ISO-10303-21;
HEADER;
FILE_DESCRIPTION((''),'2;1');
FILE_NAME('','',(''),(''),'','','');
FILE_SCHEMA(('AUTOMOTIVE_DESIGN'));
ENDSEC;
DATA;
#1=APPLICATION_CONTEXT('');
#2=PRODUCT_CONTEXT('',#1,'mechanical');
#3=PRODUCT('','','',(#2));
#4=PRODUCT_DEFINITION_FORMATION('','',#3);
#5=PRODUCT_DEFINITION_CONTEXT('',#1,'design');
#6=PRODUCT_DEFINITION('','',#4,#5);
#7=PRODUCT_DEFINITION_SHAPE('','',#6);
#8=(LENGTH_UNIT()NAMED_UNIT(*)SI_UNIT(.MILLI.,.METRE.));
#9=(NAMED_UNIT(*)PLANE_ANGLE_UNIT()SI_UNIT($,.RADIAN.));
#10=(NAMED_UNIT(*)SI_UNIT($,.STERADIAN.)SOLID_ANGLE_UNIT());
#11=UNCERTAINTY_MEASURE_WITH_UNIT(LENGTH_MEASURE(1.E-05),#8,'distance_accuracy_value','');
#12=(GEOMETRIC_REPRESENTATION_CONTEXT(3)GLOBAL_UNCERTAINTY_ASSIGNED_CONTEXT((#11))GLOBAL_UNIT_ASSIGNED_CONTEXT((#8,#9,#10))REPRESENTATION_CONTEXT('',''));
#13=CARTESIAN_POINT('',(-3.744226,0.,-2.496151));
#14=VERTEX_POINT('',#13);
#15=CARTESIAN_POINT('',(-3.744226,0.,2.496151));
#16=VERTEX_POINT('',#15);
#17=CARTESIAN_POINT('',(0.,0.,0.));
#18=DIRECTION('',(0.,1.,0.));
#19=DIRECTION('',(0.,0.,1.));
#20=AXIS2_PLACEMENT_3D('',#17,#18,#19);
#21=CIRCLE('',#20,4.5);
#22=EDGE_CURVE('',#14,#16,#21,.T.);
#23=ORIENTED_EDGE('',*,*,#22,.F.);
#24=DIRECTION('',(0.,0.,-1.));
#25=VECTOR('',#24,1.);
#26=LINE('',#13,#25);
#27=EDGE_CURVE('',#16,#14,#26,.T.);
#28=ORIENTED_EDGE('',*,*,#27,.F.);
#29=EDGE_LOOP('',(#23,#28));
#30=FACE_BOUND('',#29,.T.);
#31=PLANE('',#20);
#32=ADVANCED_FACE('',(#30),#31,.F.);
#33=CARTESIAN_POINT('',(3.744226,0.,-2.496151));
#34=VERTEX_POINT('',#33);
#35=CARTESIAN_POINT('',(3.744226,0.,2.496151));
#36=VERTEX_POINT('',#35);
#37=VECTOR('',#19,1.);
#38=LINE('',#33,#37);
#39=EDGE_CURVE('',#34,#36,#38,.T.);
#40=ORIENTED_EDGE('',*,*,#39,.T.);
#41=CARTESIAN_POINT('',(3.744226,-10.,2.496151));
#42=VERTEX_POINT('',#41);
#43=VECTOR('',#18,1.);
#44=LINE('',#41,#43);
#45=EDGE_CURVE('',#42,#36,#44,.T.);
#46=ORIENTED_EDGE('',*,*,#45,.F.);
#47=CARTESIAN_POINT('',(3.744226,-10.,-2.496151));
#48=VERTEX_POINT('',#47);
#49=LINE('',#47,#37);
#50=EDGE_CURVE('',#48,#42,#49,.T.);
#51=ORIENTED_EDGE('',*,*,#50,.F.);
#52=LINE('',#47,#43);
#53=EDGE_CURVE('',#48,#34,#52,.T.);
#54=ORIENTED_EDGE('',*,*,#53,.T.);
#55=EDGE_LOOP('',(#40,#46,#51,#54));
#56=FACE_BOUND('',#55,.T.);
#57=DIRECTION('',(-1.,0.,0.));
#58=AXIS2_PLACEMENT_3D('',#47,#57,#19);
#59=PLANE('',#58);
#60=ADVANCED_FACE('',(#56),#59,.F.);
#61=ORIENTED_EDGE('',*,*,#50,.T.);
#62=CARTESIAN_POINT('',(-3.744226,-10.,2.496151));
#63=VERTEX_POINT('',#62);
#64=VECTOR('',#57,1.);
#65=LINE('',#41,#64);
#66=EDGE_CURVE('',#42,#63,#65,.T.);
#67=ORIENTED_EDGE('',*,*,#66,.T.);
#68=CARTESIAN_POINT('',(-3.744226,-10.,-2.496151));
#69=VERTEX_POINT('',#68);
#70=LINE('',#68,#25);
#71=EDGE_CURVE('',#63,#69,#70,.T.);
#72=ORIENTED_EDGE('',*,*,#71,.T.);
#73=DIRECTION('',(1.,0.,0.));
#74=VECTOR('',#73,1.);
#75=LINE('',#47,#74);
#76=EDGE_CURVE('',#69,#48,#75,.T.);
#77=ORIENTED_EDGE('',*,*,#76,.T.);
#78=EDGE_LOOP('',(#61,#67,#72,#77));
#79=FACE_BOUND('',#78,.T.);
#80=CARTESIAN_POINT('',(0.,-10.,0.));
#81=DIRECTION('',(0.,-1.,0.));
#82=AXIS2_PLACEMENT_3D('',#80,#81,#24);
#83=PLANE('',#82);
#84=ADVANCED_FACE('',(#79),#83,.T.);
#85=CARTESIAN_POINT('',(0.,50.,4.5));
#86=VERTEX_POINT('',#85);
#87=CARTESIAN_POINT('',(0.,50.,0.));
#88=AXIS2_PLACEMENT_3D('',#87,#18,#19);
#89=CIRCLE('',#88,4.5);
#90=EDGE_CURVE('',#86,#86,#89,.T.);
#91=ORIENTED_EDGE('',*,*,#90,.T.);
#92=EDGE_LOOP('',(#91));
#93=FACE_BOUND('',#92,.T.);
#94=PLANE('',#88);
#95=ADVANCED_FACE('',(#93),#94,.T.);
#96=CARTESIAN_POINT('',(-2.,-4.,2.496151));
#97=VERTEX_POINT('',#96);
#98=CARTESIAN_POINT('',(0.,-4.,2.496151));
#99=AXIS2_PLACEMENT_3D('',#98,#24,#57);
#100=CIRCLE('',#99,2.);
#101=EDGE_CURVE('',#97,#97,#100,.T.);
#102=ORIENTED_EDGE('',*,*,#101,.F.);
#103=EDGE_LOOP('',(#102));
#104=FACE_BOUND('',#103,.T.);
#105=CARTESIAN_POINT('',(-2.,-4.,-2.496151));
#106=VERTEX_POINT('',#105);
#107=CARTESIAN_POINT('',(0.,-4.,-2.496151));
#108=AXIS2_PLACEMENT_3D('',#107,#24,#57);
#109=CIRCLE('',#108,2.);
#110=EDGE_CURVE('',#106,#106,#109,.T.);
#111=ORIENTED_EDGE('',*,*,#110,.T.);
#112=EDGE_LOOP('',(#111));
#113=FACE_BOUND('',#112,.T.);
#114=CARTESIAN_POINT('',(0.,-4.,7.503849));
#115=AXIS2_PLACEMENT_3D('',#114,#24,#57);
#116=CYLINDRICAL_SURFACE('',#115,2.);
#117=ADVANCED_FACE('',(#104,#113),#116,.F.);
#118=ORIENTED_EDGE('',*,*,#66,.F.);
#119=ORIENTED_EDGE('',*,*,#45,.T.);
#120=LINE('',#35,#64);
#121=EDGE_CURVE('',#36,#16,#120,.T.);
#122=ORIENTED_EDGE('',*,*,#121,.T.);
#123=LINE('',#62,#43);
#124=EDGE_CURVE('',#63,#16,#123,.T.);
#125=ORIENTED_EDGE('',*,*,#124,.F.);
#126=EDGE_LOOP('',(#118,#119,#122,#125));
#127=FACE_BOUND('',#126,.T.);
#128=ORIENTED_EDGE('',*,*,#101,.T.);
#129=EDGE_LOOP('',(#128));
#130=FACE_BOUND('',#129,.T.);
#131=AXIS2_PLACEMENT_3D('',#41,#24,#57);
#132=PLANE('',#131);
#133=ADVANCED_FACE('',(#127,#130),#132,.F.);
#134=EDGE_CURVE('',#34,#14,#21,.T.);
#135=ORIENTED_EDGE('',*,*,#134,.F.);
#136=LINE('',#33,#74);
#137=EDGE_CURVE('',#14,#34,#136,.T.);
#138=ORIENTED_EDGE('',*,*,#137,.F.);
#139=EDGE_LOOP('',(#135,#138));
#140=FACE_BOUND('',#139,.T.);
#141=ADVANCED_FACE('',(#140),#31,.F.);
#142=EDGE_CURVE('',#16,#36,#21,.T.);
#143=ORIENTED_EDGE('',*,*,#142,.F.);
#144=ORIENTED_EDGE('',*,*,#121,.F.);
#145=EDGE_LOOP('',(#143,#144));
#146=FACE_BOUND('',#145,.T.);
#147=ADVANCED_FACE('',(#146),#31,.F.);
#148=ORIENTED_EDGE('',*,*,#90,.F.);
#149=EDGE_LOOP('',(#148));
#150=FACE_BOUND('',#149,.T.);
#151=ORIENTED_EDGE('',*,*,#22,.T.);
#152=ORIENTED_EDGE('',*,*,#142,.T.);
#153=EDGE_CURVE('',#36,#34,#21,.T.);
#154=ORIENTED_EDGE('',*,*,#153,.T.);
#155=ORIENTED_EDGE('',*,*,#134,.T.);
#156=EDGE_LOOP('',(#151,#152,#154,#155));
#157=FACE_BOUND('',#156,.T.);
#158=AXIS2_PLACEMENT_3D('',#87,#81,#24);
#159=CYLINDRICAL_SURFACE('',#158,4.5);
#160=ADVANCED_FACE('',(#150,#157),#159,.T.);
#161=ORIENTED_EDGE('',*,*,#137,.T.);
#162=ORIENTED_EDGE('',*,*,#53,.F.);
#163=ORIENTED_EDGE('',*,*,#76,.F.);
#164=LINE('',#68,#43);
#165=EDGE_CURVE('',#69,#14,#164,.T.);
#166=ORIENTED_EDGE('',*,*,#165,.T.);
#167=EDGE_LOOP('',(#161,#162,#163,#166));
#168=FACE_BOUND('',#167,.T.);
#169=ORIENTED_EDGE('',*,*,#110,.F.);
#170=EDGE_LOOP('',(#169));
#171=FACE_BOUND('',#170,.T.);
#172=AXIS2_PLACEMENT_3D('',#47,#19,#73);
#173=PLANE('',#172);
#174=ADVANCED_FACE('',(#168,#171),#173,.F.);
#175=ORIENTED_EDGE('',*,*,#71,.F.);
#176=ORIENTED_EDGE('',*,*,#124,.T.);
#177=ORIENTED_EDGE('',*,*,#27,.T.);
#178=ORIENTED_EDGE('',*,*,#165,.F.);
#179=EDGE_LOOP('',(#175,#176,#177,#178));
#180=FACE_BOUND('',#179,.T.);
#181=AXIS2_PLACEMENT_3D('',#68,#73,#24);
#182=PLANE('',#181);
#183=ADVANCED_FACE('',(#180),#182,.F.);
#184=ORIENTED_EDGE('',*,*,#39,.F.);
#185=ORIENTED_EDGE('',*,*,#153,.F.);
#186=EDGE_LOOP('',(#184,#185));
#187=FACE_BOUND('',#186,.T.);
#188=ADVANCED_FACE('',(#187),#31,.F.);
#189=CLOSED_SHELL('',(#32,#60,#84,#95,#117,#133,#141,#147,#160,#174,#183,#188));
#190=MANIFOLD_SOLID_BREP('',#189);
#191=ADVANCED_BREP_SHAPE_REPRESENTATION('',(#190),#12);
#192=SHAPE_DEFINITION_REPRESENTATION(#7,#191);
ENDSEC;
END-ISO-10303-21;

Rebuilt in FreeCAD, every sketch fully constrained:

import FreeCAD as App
import Part
import Sketcher

V = App.Vector
Q = App.Units.Quantity

doc = App.newDocument("Part")
params = doc.addObject("Spreadsheet::Sheet", "Params")
for row, (alias, value) in enumerate([
    ("sketch1_diameter", "9 mm"),
    ("pad1_length", "50 mm"),
    ("pad2_length", "10 mm"),
    ("sketch3_diameter", "4 mm"),
    ("pocket1_length", "10 mm"),
], start=1):
    params.set(f"A{row}", alias)
    params.set(f"B{row}", "=" + value)
    params.setAlias(f"B{row}", alias)

body = doc.addObject("PartDesign::Body", "Body")

# Sketch on XZ plane
sketch1 = body.newObject("Sketcher::SketchObject", "Sketch")
sketch1.AttachmentSupport = (doc.getObject("XZ_Plane"), [""])
sketch1.MapMode = "FlatFace"
sketch1.addGeometry(Part.Circle(V(0, 0, 0), V(0, 0, 1), 4.5), False)
sketch1.addConstraint(Sketcher.Constraint("Coincident", 0, 3, -1, 1))
sketch1.addConstraint(Sketcher.Constraint("Diameter", 0, Q("9 mm")))
sketch1.setExpression("Constraints[1]", "Params.sketch1_diameter")
pad1 = body.newObject("PartDesign::Pad", "Pad")
pad1.Profile = sketch1
pad1.setExpression("Length", "Params.pad1_length")
pad1.Reversed = True

# Sketch on XZ plane
sketch2 = body.newObject("Sketcher::SketchObject", "Sketch001")
sketch2.AttachmentSupport = (doc.getObject("XZ_Plane"), [""])
sketch2.MapMode = "FlatFace"
sketch2.addGeometry(Part.LineSegment(V(-3.7, 2.5, 0), V(-3.7, -2.5, 0)), False)
sketch2.addGeometry(Part.LineSegment(V(-3.7, -2.5, 0), V(3.7, -2.5, 0)), False)
sketch2.addGeometry(Part.LineSegment(V(3.7, -2.5, 0), V(3.7, 2.5, 0)), False)
sketch2.addGeometry(Part.LineSegment(V(3.7, 2.5, 0), V(-3.7, 2.5, 0)), False)
sketch2.addConstraint(Sketcher.Constraint("Coincident", 0, 2, 1, 1))
sketch2.addConstraint(Sketcher.Constraint("Coincident", 1, 2, 2, 1))
sketch2.addConstraint(Sketcher.Constraint("Coincident", 2, 2, 3, 1))
sketch2.addConstraint(Sketcher.Constraint("Coincident", 3, 2, 0, 1))
sketch2.addConstraint(Sketcher.Constraint("Vertical", 0))
sketch2.addConstraint(Sketcher.Constraint("Horizontal", 1))
sketch2.addConstraint(Sketcher.Constraint("Vertical", 2))
sketch2.addConstraint(Sketcher.Constraint("Horizontal", 3))
sketch2.addConstraint(Sketcher.Constraint("Symmetric", 0, 2, 2, 2, -1, 1))
sketch2.addConstraint(Sketcher.Constraint("DistanceY", 0, 2, 0, 1, Q("4.992302 mm")))
sketch2.addConstraint(Sketcher.Constraint("DistanceX", 1, 1, 1, 2, Q("7.488453 mm")))
pad2 = body.newObject("PartDesign::Pad", "Pad001")
pad2.Profile = sketch2
pad2.setExpression("Length", "Params.pad2_length")

# Sketch on XY plane
sketch3 = body.newObject("Sketcher::SketchObject", "Sketch002")
sketch3.AttachmentSupport = (doc.getObject("XY_Plane"), [""])
sketch3.MapMode = "FlatFace"
sketch3.AttachmentOffset = App.Placement(V(0, 0, -2.496151), App.Rotation())
sketch3.addGeometry(Part.Circle(V(0, -4, 0), V(0, 0, 1), 2), False)
sketch3.addConstraint(Sketcher.Constraint("PointOnObject", 0, 3, -2))
sketch3.addConstraint(Sketcher.Constraint("Diameter", 0, Q("4 mm")))
sketch3.addConstraint(Sketcher.Constraint("DistanceY", 0, 3, -1, 1, Q("4 mm")))
sketch3.setExpression("Constraints[1]", "Params.sketch3_diameter")
pocket1 = body.newObject("PartDesign::Pocket", "Pocket")
pocket1.Profile = sketch3
pocket1.setExpression("Length", "Params.pocket1_length")
pocket1.Reversed = True

doc.recompute()
